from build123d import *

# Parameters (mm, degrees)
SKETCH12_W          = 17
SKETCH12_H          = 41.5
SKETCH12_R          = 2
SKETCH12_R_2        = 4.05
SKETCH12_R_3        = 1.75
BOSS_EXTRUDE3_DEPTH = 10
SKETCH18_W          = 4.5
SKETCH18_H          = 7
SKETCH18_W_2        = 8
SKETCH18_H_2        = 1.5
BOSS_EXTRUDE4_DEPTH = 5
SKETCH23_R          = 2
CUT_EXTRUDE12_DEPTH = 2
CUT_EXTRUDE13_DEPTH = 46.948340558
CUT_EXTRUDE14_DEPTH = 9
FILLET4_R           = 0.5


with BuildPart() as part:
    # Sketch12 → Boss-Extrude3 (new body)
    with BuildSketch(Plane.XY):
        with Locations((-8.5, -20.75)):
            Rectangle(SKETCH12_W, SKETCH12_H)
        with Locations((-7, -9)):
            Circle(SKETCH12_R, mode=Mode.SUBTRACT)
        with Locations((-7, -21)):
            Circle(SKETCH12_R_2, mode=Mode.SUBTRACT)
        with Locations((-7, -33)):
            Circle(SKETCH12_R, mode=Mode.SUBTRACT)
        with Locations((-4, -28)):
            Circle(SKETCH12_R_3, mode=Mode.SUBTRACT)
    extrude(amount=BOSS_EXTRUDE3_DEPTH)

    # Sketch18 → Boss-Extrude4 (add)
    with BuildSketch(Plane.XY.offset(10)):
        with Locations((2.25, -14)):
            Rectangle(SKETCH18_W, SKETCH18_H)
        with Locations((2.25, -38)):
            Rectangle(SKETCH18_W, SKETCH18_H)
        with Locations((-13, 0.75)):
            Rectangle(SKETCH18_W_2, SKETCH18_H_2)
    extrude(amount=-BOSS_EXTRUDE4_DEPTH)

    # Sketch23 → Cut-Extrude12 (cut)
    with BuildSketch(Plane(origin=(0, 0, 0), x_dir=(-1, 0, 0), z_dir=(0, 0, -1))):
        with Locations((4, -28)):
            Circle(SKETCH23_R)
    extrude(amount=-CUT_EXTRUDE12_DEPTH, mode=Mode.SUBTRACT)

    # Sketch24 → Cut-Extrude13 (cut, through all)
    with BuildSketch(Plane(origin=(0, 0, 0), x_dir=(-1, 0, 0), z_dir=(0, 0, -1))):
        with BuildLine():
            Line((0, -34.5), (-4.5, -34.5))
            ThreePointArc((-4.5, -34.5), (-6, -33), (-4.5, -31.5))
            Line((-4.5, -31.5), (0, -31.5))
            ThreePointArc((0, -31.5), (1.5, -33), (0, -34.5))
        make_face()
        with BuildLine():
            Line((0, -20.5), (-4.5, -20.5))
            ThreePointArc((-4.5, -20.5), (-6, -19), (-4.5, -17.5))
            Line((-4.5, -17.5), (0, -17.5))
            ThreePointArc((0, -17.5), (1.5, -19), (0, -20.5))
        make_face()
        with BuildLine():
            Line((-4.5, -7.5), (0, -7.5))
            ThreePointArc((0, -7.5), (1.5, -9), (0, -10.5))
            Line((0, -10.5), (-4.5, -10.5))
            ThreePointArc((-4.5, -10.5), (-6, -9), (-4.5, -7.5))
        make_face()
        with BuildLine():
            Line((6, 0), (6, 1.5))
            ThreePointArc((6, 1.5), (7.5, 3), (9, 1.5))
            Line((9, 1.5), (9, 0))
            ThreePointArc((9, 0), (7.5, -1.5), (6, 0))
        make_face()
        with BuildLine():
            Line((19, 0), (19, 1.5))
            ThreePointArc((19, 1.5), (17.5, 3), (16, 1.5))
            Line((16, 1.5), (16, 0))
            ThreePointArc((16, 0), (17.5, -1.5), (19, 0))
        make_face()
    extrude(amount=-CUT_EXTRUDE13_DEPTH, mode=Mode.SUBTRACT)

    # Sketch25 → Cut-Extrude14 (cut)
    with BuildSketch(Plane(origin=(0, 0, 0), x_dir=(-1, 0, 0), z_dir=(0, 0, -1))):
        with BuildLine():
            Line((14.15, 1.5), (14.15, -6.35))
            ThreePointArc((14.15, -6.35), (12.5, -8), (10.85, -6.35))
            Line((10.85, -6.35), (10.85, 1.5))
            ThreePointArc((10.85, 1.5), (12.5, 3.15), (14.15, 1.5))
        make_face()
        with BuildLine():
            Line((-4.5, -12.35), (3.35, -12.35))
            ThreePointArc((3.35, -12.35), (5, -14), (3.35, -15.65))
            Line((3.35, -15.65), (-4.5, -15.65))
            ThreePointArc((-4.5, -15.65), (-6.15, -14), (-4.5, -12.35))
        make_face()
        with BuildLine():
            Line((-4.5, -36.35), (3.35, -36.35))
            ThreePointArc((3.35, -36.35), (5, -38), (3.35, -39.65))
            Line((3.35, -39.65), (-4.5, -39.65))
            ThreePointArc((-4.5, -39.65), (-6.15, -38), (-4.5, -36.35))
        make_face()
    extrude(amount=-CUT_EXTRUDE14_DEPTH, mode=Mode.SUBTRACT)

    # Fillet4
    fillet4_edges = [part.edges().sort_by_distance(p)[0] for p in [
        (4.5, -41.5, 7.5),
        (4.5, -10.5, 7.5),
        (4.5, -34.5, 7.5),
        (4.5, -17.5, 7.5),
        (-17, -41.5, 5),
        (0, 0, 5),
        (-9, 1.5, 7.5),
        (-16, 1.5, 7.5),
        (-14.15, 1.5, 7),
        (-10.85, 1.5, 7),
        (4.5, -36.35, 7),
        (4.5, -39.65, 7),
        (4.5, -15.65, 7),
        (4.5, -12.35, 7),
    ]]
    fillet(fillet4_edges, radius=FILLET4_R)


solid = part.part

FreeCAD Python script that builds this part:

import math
import FreeCAD as App
import Part
import Sketcher
Q = App.Units.Quantity


def edges_at(feature, points):
    """Names of the edges that pass closest to the given points."""
    edges = feature.Shape.Edges
    near = lambda p: min(range(len(edges)), key=lambda i: edges[i].distToShape(Part.Vertex(*p))[0])
    return sorted({f"Edge{near(p) + 1}" for p in points})


def add_polygon(sketch, points):
    """Adds a closed chain of lines whose ends are joined by coincident constraints."""
    first, n = sketch.GeometryCount, len(points)
    for a, b in zip(points, points[1:] + points[:1]):
        sketch.addGeometry(Part.LineSegment(App.Vector(*a, 0), App.Vector(*b, 0)), False)
    for i in range(n):
        sketch.addConstraint(Sketcher.Constraint("Coincident", first + i, 2, first + (i + 1) % n, 1))

doc = App.newDocument("Part")
body = doc.addObject("PartDesign::Body", "Body")

sketch1 = body.newObject("Sketcher::SketchObject", "Sketch")
sketch1.AttachmentSupport = (doc.getObject("XY_Plane"), [""])
sketch1.MapMode = "FlatFace"
add_polygon(sketch1, [(-17, 0), (-17, -41.5), (0, -41.5), (0, 0)])
sketch1.addGeometry(Part.Circle(App.Vector(-7, -33, 0), App.Vector(0, 0, 1), 2), False)
sketch1.addGeometry(Part.Circle(App.Vector(-4, -28, 0), App.Vector(0, 0, 1), 1.8), False)
sketch1.addGeometry(Part.Circle(App.Vector(-7, -21, 0), App.Vector(0, 0, 1), 4), False)
sketch1.addGeometry(Part.Circle(App.Vector(-7, -9, 0), App.Vector(0, 0, 1), 2), False)
sketch1.addConstraint([
    Sketcher.Constraint("Vertical", 0),
    Sketcher.Constraint("Horizontal", 1),
    Sketcher.Constraint("Vertical", 2),
    Sketcher.Constraint("Horizontal", 3),
    Sketcher.Constraint("Coincident", 2, 2, -1, 1),
    Sketcher.Constraint("Equal", 4, 7),
    Sketcher.Constraint("Vertical", 4, 3, 6, 3),
    Sketcher.Constraint("Vertical", 6, 3, 7, 3),
    Sketcher.Constraint("Diameter", 4, Q("4 mm")),
    Sketcher.Constraint("Diameter", 5, Q("3.5 mm")),
    Sketcher.Constraint("Diameter", 6, Q("8.1 mm")),
    Sketcher.Constraint("DistanceX", 1, 1, 1, 2, Q("17 mm")),
    Sketcher.Constraint("DistanceY", 0, 2, 0, 1, Q("41.5 mm")),
    Sketcher.Constraint("DistanceX", 4, 3, -1, 1, Q("7 mm")),
    Sketcher.Constraint("DistanceY", 4, 3, -1, 1, Q("33 mm")),
    Sketcher.Constraint("DistanceX", 5, 3, -1, 1, Q("4 mm")),
    Sketcher.Constraint("DistanceY", 5, 3, -1, 1, Q("28 mm")),
    Sketcher.Constraint("DistanceY", 6, 3, -1, 1, Q("21 mm")),
    Sketcher.Constraint("DistanceY", 7, 3, -1, 1, Q("9 mm")),
])
pad1 = body.newObject("PartDesign::Pad", "Pad")
pad1.Profile = sketch1
pad1.Length = 10

sketch2 = body.newObject("Sketcher::SketchObject", "Sketch001")
sketch2.AttachmentSupport = (doc.getObject("XY_Plane"), [""])
sketch2.MapMode = "FlatFace"
sketch2.AttachmentOffset = App.Placement(App.Vector(0, 0, 10), App.Rotation())
add_polygon(sketch2, [(0, -10.5), (0, -17.5), (4.5, -17.5), (4.5, -10.5)])
add_polygon(sketch2, [(0, -34.5), (0, -41.5), (4.5, -41.5), (4.5, -34.5)])
add_polygon(sketch2, [(-17, 1.5), (-17, 0), (-9, 0), (-9, 1.5)])
sketch2.addConstraint([
    Sketcher.Constraint("Vertical", 0),
    Sketcher.Constraint("Horizontal", 1),
    Sketcher.Constraint("Vertical", 2),
    Sketcher.Constraint("Horizontal", 3),
    Sketcher.Constraint("Vertical", 4),
    Sketcher.Constraint("Horizontal", 5),
    Sketcher.Constraint("Vertical", 6),
    Sketcher.Constraint("Horizontal", 7),
    Sketcher.Constraint("Vertical", 8),
    Sketcher.Constraint("Horizontal", 9),
    Sketcher.Constraint("Vertical", 10),
    Sketcher.Constraint("Horizontal", 11),
    Sketcher.Constraint("PointOnObject", 0, 2, -2),
    Sketcher.Constraint("PointOnObject", 4, 2, -2),
    Sketcher.Constraint("PointOnObject", 8, 2, -1),
    Sketcher.Constraint("Vertical", 2, 2, 5, 2),
    Sketcher.Constraint("Equal", 2, 4),
    Sketcher.Constraint("DistanceX", 9, 1, 9, 2, Q("8 mm")),
    Sketcher.Constraint("DistanceY", 0, 2, 0, 1, Q("7 mm")),
    Sketcher.Constraint("DistanceX", 1, 1, 1, 2, Q("4.5 mm")),
    Sketcher.Constraint("DistanceY", 8, 2, 8, 1, Q("1.5 mm")),
    Sketcher.Constraint("DistanceX", 8, 2, -1, 1, Q("17 mm")),
    Sketcher.Constraint("DistanceY", 4, 2, 0, 2, Q("24 mm")),
    Sketcher.Constraint("DistanceY", 3, 2, 10, 2, Q("12 mm")),
])
pad2 = body.newObject("PartDesign::Pad", "Pad001")
pad2.Profile = sketch2
pad2.Length = 5
pad2.Reversed = True

sketch3 = body.newObject("Sketcher::SketchObject", "Sketch002")
sketch3.AttachmentSupport = (doc.getObject("XY_Plane"), [""])
sketch3.MapMode = "FlatFace"
sketch3.addGeometry(Part.Circle(App.Vector(-4, -28, 0), App.Vector(0, 0, 1), 2), False)
sketch3.addConstraint([
    Sketcher.Constraint("Diameter", 0, Q("4 mm")),
    Sketcher.Constraint("DistanceX", 0, 3, -1, 1, Q("4 mm")),
    Sketcher.Constraint("DistanceY", 0, 3, -1, 1, Q("28 mm")),
])
pocket1 = body.newObject("PartDesign::Pocket", "Pocket")
pocket1.Profile = sketch3
pocket1.Length = 2
pocket1.Reversed = True

sketch4 = body.newObject("Sketcher::SketchObject", "Sketch003")
sketch4.AttachmentSupport = (doc.getObject("XY_Plane"), [""])
sketch4.MapMode = "FlatFace"
sketch4.addGeometry([
    Part.LineSegment(App.Vector(4.5, -34.5, 0), App.Vector(0, -34.5, 0)),
    Part.ArcOfCircle(Part.Circle(App.Vector(0, -33, 0), App.Vector(0, 0, 1), 1.5), math.radians(90), math.radians(270)),
    Part.LineSegment(App.Vector(0, -31.5, 0), App.Vector(4.5, -31.5, 0)),
    Part.ArcOfCircle(Part.Circle(App.Vector(4.5, -33, 0), App.Vector(0, 0, 1), 1.5), math.radians(-90), math.radians(90)),
    Part.LineSegment(App.Vector(4.5, -20.5, 0), App.Vector(0, -20.5, 0)),
    Part.ArcOfCircle(Part.Circle(App.Vector(0, -19, 0), App.Vector(0, 0, 1), 1.5), math.radians(90), math.radians(270)),
    Part.LineSegment(App.Vector(0, -17.5, 0), App.Vector(4.5, -17.5, 0)),
    Part.ArcOfCircle(Part.Circle(App.Vector(4.5, -19, 0), App.Vector(0, 0, 1), 1.5), math.radians(-90), math.radians(90)),
    Part.LineSegment(App.Vector(0, -7.5, 0), App.Vector(4.5, -7.5, 0)),
    Part.ArcOfCircle(Part.Circle(App.Vector(4.5, -9, 0), App.Vector(0, 0, 1), 1.5), math.radians(-90), math.radians(90)),
    Part.LineSegment(App.Vector(4.5, -10.5, 0), App.Vector(0, -10.5, 0)),
    Part.ArcOfCircle(Part.Circle(App.Vector(0, -9, 0), App.Vector(0, 0, 1), 1.5), math.radians(90), math.radians(270)),
    Part.LineSegment(App.Vector(-6, 1.5, 0), App.Vector(-6, 0, 0)),
    Part.ArcOfCircle(Part.Circle(App.Vector(-7.5, 0, 0), App.Vector(0, 0, 1), 1.5), math.radians(180), math.radians(360)),
    Part.LineSegment(App.Vector(-9, 0, 0), App.Vector(-9, 1.5, 0)),
    Part.ArcOfCircle(Part.Circle(App.Vector(-7.5, 1.5, 0), App.Vector(0, 0, 1), 1.5), math.radians(0), math.radians(180)),
    Part.LineSegment(App.Vector(-19, 0, 0), App.Vector(-19, 1.5, 0)),
    Part.ArcOfCircle(Part.Circle(App.Vector(-17.5, 1.5, 0), App.Vector(0, 0, 1), 1.5), math.radians(0), math.radians(180)),
    Part.LineSegment(App.Vector(-16, 1.5, 0), App.Vector(-16, 0, 0)),
    Part.ArcOfCircle(Part.Circle(App.Vector(-17.5, 0, 0), App.Vector(0, 0, 1), 1.5), math.radians(180), math.radians(360)),
], False)
sketch4.addConstraint([
    Sketcher.Constraint("Tangent", 0, 2, 1, 2),
    Sketcher.Constraint("Tangent", 1, 1, 2, 1),
    Sketcher.Constraint("Tangent", 2, 2, 3, 2),
    Sketcher.Constraint("Tangent", 3, 1, 0, 1),
    Sketcher.Constraint("Tangent", 4, 2, 5, 2),
    Sketcher.Constraint("Tangent", 5, 1, 6, 1),
    Sketcher.Constraint("Tangent", 6, 2, 7, 2),
    Sketcher.Constraint("Tangent", 7, 1, 4, 1),
    Sketcher.Constraint("Tangent", 8, 2, 9, 2),
    Sketcher.Constraint("Tangent", 9, 1, 10, 1),
    Sketcher.Constraint("Tangent", 10, 2, 11, 2),
    Sketcher.Constraint("Tangent", 11, 1, 8, 1),
    Sketcher.Constraint("Tangent", 12, 2, 13, 2),
    Sketcher.Constraint("Tangent", 13, 1, 14, 1),
    Sketcher.Constraint("Tangent", 14, 2, 15, 2),
    Sketcher.Constraint("Tangent", 15, 1, 12, 1),
    Sketcher.Constraint("Tangent", 16, 2, 17, 2),
    Sketcher.Constraint("Tangent", 17, 1, 18, 1),
    Sketcher.Constraint("Tangent", 18, 2, 19, 2),
    Sketcher.Constraint("Tangent", 19, 1, 16, 1),
    Sketcher.Constraint("Horizontal", 0),
    Sketcher.Constraint("Horizontal", 2),
    Sketcher.Constraint("Horizontal", 4),
    Sketcher.Constraint("Horizontal", 6),
    Sketcher.Constraint("Horizontal", 8),
    Sketcher.Constraint("Horizontal", 10),
    Sketcher.Constraint("Vertical", 12),
    Sketcher.Constraint("Vertical", 14),
    Sketcher.Constraint("Vertical", 16),
    Sketcher.Constraint("Vertical", 18),
    Sketcher.Constraint("Equal", 3, 5),
    Sketcher.Constraint("Equal", 7, 9),
    Sketcher.Constraint("Equal", 11, 13),
    Sketcher.Constraint("Equal", 15, 17),
    Sketcher.Constraint("PointOnObject", 1, 3, -2),
    Sketcher.Constraint("PointOnObject", 5, 3, -2),
    Sketcher.Constraint("PointOnObject", 11, 3, -2),
    Sketcher.Constraint("PointOnObject", 13, 3, -1),
    Sketcher.Constraint("PointOnObject", 19, 3, -1),
    Sketcher.Constraint("Horizontal", 15, 3, 17, 3),
    Sketcher.Constraint("Vertical", 3, 3, 7, 3),
    Sketcher.Constraint("Vertical", 7, 3, 9, 3),
    Sketcher.Constraint("Radius", 1, Q("1.5 mm")),
    Sketcher.Constraint("DistanceX", 0, 2, 0, 1, Q("4.5 mm")),
    Sketcher.Constraint("DistanceY", 12, 2, 12, 1, Q("1.5 mm")),
    Sketcher.Constraint("DistanceY", 1, 3, -1, 1, Q("33 mm")),
    Sketcher.Constraint("DistanceY", 5, 3, -1, 1, Q("19 mm")),
    Sketcher.Constraint("DistanceY", 9, 3, -1, 1, Q("9 mm")),
    Sketcher.Constraint("DistanceX", 12, 2, -1, 1, Q("6 mm")),
    Sketcher.Constraint("DistanceX", 16, 2, -1, 1, Q("19 mm")),
])
pocket2 = body.newObject("PartDesign::Pocket", "Pocket001")
pocket2.Profile = sketch4
pocket2.Type = "ThroughAll"
pocket2.Reversed = True

sketch5 = body.newObject("Sketcher::SketchObject", "Sketch004")
sketch5.AttachmentSupport = (doc.getObject("XY_Plane"), [""])
sketch5.MapMode = "FlatFace"
sketch5.addGeometry([
    Part.LineSegment(App.Vector(-14.2, -6.3, 0), App.Vector(-14.2, 1.5, 0)),
    Part.ArcOfCircle(Part.Circle(App.Vector(-12.5, 1.5, 0), App.Vector(0, 0, 1), 1.6), math.radians(0), math.radians(180)),
    Part.LineSegment(App.Vector(-10.8, 1.5, 0), App.Vector(-10.8, -6.3, 0)),
    Part.ArcOfCircle(Part.Circle(App.Vector(-12.5, -6.3, 0), App.Vector(0, 0, 1), 1.6), math.radians(180), math.radians(360)),
    Part.LineSegment(App.Vector(-3.4, -12.3, 0), App.Vector(4.5, -12.3, 0)),
    Part.ArcOfCircle(Part.Circle(App.Vector(4.5, -14, 0), App.Vector(0, 0, 1), 1.6), math.radians(-90), math.radians(90)),
    Part.LineSegment(App.Vector(4.5, -15.7, 0), App.Vector(-3.4, -15.7, 0)),
    Part.ArcOfCircle(Part.Circle(App.Vector(-3.4, -14, 0), App.Vector(0, 0, 1), 1.6), math.radians(90), math.radians(270)),
    Part.LineSegment(App.Vector(-3.4, -36.4, 0), App.Vector(4.5, -36.4, 0)),
    Part.ArcOfCircle(Part.Circle(App.Vector(4.5, -38, 0), App.Vector(0, 0, 1), 1.6), math.radians(-90), math.radians(90)),
    Part.LineSegment(App.Vector(4.5, -39.6, 0), App.Vector(-3.4, -39.6, 0)),
    Part.ArcOfCircle(Part.Circle(App.Vector(-3.4, -38, 0), App.Vector(0, 0, 1), 1.6), math.radians(90), math.radians(270)),
], False)
sketch5.addConstraint([
    Sketcher.Constraint("Tangent", 0, 2, 1, 2),
    Sketcher.Constraint("Tangent", 1, 1, 2, 1),
    Sketcher.Constraint("Tangent", 2, 2, 3, 2),
    Sketcher.Constraint("Tangent", 3, 1, 0, 1),
    Sketcher.Constraint("Tangent", 4, 2, 5, 2),
    Sketcher.Constraint("Tangent", 5, 1, 6, 1),
    Sketcher.Constraint("Tangent", 6, 2, 7, 2),
    Sketcher.Constraint("Tangent", 7, 1, 4, 1),
    Sketcher.Constraint("Tangent", 8, 2, 9, 2),
    Sketcher.Constraint("Tangent", 9, 1, 10, 1),
    Sketcher.Constraint("Tangent", 10, 2, 11, 2),
    Sketcher.Constraint("Tangent", 11, 1, 8, 1),
    Sketcher.Constraint("Vertical", 0),
    Sketcher.Constraint("Vertical", 2),
    Sketcher.Constraint("Horizontal", 4),
    Sketcher.Constraint("Horizontal", 6),
    Sketcher.Constraint("Horizontal", 8),
    Sketcher.Constraint("Horizontal", 10),
    Sketcher.Constraint("Equal", 3, 5),
    Sketcher.Constraint("Equal", 7, 9),
    Sketcher.Constraint("Vertical", 5, 3, 9, 3),
    Sketcher.Constraint("Vertical", 7, 3, 11, 3),
    Sketcher.Constraint("Equal", 10, 0),
    Sketcher.Constraint("Radius", 1, Q("1.65 mm")),
    Sketcher.Constraint("DistanceY", 5, 3, -1, 1, Q("14 mm")),
    Sketcher.Constraint("DistanceY", 9, 3, -1, 1, Q("38 mm")),
    Sketcher.Constraint("DistanceX", 3, 3, 5, 3, Q("17 mm")),
    Sketcher.Constraint("DistanceY", 4, 2, 2, 2, Q("6 mm")),
    Sketcher.Constraint("DistanceX", 4, 1, 4, 2, Q("7.85 mm")),
    Sketcher.Constraint("DistanceX", 1, 3, -1, 1, Q("12.5 mm")),
])
pocket3 = body.newObject("PartDesign::Pocket", "Pocket002")
pocket3.Profile = sketch5
pocket3.Length = 9
pocket3.Reversed = True
doc.recompute()

fillet = body.newObject("PartDesign::Fillet", "Fillet")
fillet.Base = (pocket3, edges_at(pocket3, [
    (4.5, -41.5, 7.5),
    (4.5, -10.5, 7.5),
    (4.5, -34.5, 7.5),
    (4.5, -17.5, 7.5),
    (-17, -41.5, 5),
    (0, 0, 5),
    (-9, 1.5, 7.5),
    (-16, 1.5, 7.5),
    (-14.15, 1.5, 7),
    (-10.85, 1.5, 7),
    (4.5, -36.35, 7),
    (4.5, -39.65, 7),
    (4.5, -15.65, 7),
    (4.5, -12.35, 7),
]))
fillet.Radius = 0.5

doc.recompute()
